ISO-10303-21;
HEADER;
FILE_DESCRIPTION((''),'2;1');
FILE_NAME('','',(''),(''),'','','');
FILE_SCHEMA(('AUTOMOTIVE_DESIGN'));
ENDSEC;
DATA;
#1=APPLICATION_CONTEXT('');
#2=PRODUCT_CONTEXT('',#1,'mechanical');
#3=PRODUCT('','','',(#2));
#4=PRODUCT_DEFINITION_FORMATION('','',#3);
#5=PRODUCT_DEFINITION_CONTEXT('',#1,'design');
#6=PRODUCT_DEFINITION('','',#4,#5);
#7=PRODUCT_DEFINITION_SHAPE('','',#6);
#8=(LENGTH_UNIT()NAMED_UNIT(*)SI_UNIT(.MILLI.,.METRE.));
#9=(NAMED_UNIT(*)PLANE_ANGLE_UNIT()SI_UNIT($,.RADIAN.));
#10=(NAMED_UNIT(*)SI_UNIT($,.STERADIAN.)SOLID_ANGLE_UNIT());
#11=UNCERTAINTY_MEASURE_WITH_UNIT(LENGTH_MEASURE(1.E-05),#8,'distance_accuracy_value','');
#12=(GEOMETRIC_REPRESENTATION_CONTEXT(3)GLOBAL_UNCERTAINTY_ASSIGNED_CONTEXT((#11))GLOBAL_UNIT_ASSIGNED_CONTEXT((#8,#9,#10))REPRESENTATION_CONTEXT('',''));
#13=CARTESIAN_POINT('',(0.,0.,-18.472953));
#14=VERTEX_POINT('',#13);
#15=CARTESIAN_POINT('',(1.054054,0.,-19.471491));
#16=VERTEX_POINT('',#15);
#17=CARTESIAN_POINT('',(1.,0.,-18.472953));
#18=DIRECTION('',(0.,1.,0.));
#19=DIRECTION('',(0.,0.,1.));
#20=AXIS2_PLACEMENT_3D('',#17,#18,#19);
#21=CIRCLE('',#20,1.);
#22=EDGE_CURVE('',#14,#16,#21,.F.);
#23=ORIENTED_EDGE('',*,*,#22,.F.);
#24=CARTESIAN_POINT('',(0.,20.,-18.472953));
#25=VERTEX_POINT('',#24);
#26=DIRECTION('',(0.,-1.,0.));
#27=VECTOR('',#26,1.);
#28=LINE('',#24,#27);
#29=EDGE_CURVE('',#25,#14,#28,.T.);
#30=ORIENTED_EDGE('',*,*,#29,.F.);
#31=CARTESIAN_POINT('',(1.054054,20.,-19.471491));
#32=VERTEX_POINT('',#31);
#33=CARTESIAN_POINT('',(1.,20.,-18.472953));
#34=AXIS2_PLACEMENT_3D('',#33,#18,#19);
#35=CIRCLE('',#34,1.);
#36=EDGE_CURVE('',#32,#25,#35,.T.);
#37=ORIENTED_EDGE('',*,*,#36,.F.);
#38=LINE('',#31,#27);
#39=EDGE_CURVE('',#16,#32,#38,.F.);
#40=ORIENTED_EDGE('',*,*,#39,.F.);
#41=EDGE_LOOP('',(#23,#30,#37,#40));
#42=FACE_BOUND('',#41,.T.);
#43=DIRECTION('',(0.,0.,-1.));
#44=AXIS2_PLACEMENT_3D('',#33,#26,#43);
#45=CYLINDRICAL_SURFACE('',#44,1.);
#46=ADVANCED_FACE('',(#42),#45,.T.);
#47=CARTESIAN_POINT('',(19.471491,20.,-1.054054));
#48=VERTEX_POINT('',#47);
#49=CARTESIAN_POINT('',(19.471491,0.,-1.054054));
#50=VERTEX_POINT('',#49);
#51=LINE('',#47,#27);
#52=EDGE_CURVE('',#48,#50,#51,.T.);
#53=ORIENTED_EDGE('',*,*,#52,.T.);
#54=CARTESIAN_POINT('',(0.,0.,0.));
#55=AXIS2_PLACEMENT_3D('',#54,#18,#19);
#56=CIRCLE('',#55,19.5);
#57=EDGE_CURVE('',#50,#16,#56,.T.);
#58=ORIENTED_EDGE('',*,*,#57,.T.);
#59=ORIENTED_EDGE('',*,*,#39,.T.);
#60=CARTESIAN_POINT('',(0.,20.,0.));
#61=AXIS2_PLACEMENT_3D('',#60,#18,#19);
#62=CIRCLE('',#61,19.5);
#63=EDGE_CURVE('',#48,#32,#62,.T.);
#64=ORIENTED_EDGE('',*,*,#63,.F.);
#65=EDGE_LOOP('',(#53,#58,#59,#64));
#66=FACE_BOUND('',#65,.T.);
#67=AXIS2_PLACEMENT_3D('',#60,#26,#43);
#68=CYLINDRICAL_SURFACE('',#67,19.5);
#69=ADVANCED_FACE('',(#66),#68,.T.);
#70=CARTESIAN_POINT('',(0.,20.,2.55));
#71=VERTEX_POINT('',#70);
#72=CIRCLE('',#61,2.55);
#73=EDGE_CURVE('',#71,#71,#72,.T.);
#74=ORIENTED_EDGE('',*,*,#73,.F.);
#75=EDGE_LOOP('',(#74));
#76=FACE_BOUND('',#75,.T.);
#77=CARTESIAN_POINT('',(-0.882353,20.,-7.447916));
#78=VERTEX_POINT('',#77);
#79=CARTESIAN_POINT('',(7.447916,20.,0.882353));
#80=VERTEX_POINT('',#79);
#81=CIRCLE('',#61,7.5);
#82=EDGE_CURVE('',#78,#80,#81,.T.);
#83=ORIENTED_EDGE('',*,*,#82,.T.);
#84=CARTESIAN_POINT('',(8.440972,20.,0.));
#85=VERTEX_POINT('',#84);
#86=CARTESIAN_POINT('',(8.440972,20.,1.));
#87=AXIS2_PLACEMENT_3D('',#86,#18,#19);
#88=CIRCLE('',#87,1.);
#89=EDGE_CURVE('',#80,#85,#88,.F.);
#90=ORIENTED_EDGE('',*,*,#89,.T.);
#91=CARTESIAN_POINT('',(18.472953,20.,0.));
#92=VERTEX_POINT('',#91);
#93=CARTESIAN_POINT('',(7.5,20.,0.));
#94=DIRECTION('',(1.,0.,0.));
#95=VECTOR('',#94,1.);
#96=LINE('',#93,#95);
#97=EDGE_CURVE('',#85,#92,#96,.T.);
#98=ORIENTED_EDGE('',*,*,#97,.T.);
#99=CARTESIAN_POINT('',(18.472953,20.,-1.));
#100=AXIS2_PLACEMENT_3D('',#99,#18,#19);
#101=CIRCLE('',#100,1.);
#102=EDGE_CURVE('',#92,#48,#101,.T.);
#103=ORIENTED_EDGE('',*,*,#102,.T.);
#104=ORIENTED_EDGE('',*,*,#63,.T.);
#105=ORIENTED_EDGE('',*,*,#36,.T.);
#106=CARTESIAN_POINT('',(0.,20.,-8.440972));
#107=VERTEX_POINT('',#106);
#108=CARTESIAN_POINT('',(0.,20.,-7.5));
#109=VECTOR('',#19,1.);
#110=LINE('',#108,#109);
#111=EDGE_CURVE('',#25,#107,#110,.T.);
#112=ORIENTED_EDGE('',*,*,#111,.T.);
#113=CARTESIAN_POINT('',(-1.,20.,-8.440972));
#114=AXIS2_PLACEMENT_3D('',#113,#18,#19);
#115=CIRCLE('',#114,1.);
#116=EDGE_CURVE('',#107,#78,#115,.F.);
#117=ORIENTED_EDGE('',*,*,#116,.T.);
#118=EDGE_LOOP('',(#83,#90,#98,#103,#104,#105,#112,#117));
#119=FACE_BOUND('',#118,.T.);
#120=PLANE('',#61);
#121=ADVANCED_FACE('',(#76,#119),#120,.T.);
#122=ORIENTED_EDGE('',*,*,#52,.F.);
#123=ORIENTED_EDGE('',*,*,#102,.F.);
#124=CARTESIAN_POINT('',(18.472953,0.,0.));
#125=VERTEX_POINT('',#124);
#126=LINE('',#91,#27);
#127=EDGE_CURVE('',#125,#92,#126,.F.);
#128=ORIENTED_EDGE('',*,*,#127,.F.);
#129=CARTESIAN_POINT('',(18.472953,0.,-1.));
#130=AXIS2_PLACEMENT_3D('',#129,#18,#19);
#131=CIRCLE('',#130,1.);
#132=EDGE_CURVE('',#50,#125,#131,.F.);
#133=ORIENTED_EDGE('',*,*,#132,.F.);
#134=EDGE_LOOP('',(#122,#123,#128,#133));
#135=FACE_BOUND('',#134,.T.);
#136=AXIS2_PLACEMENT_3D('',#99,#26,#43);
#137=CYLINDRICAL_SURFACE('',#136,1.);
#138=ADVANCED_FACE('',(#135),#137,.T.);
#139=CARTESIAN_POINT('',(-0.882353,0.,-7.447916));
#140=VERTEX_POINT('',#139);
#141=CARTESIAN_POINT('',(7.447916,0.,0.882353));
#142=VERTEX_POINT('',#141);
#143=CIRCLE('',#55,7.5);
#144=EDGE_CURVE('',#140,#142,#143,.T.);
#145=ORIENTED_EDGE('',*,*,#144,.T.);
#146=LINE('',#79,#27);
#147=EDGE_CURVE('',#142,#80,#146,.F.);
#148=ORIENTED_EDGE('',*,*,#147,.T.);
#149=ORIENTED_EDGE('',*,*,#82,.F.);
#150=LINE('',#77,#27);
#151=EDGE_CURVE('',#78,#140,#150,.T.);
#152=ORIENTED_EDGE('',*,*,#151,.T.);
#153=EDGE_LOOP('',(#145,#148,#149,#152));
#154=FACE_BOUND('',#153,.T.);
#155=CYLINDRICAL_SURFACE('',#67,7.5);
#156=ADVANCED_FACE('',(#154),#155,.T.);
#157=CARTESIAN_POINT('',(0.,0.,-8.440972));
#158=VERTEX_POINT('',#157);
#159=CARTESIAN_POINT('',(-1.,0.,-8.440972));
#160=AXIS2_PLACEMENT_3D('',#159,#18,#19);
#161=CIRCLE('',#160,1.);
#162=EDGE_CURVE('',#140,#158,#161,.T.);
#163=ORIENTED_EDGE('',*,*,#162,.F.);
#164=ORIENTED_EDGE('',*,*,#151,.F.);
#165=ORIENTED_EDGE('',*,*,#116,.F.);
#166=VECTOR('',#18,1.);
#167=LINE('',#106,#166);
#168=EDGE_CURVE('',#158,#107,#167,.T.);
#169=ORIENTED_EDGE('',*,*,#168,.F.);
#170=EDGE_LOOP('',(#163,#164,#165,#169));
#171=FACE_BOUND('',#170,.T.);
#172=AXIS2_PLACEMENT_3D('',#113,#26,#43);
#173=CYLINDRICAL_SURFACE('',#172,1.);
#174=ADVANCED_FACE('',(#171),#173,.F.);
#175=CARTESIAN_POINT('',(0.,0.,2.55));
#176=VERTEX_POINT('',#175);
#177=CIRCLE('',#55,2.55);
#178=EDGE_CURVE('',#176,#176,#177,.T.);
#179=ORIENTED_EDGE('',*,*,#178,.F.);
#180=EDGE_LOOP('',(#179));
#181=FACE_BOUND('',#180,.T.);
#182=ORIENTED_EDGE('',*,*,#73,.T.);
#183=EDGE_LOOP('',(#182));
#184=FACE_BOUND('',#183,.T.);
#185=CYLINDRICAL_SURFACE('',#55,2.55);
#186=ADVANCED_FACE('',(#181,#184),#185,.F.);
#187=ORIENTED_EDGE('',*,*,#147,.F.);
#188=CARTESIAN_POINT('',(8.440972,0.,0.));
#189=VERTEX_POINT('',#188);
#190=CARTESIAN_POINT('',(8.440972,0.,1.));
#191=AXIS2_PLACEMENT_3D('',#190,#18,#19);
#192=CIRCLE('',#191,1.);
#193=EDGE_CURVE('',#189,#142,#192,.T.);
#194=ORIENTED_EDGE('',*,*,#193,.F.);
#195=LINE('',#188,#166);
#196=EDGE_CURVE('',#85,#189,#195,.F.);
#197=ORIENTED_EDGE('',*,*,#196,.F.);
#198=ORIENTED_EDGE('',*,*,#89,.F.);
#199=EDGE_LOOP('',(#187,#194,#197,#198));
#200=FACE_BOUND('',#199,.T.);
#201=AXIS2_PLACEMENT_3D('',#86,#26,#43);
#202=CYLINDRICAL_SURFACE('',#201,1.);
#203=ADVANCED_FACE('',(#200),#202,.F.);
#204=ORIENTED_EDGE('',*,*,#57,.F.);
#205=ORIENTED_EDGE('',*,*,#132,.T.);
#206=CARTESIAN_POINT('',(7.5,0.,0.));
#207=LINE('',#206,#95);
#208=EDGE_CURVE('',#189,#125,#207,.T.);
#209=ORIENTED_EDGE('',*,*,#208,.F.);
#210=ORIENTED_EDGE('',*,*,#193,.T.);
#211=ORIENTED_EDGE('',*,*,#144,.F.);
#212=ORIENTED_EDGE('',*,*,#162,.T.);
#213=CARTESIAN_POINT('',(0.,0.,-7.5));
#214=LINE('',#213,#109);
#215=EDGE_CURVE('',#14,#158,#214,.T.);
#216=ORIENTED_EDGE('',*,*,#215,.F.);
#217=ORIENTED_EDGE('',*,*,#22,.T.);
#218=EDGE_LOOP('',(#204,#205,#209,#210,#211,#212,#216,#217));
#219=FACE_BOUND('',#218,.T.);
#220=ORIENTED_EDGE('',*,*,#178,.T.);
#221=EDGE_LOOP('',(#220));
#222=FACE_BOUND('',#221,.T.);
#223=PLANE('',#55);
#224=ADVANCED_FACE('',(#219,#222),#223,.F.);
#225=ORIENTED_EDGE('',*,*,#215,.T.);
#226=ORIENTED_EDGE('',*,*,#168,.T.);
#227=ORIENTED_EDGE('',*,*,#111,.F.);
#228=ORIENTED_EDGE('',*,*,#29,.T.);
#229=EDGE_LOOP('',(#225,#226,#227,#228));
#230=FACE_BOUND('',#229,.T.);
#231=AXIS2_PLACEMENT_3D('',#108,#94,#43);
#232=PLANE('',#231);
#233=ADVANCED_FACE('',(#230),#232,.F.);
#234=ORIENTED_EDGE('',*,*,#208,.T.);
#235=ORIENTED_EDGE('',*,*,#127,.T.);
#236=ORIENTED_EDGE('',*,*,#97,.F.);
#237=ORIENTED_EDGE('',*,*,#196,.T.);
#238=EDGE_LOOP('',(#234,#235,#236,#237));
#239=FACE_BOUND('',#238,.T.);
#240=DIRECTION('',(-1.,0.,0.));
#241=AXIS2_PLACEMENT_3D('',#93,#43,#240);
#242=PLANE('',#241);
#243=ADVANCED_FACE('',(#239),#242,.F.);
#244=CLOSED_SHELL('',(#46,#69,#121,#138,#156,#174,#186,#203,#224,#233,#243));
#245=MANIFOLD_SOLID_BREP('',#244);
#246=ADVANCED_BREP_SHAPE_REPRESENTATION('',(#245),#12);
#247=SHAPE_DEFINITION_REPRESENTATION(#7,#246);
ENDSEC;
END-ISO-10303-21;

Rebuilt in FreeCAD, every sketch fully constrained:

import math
import FreeCAD as App
import Part
import Sketcher
Q = App.Units.Quantity


def edges_at(feature, points):
    """Names of the edges that pass closest to the given points."""
    edges = feature.Shape.Edges
    near = lambda p: min(range(len(edges)), key=lambda i: edges[i].distToShape(Part.Vertex(*p))[0])
    return sorted({f"Edge{near(p) + 1}" for p in points})

doc = App.newDocument("Part")
params = doc.addObject("Spreadsheet::Sheet", "Params")
for row, (alias, value) in enumerate([
    ("sketch1_radius", "19.5 mm"),
    ("sketch1_radius2", "7.5 mm"),
    ("pad1_length", "20 mm"),
    ("sketch2_diameter", "5.1 mm"),
    ("pocket1_length", "20 mm"),
    ("fillet_radius", "1 mm"),
], start=1):
    params.set(f"A{row}", alias)
    params.set(f"B{row}", "=" + value)
    params.setAlias(f"B{row}", alias)

body = doc.addObject("PartDesign::Body", "Body")

# Sketch on XZ plane
sketch1 = body.newObject("Sketcher::SketchObject", "Sketch")
sketch1.AttachmentSupport = (doc.getObject("XZ_Plane"), [""])
sketch1.MapMode = "FlatFace"
sketch1.addGeometry([
    Part.LineSegment(App.Vector(8, 0, 0), App.Vector(20, 0, 0)),
    Part.ArcOfCircle(Part.Circle(App.Vector(0, 0, 0), App.Vector(0, 0, 1), 20), math.radians(-90), math.radians(0)),
    Part.LineSegment(App.Vector(0, -20, 0), App.Vector(0, -8, 0)),
    Part.ArcOfCircle(Part.Circle(App.Vector(0, 0, 0), App.Vector(0, 0, 1), 8), math.radians(0), math.radians(270)),
], False)
sketch1.addConstraint([
    Sketcher.Constraint("Coincident", 0, 2, 1, 2),
    Sketcher.Constraint("Coincident", 1, 1, 2, 1),
    Sketcher.Constraint("Coincident", 2, 2, 3, 2),
    Sketcher.Constraint("Coincident", 3, 1, 0, 1),
    Sketcher.Constraint("Horizontal", 0),
    Sketcher.Constraint("Vertical", 2),
    Sketcher.Constraint("Coincident", 1, 3, -1, 1),
    Sketcher.Constraint("Coincident", 3, 3, -1, 1),
    Sketcher.Constraint("PointOnObject", 0, 2, -1),
    Sketcher.Constraint("PointOnObject", 1, 1, -2),
    Sketcher.Constraint("Radius", 1, Q("19.5 mm")),
    Sketcher.Constraint("Radius", 3, Q("7.5 mm")),
])
sketch1.setExpression("Constraints[10]", "Params.sketch1_radius")
sketch1.setExpression("Constraints[11]", "Params.sketch1_radius2")
pad1 = body.newObject("PartDesign::Pad", "Pad")
pad1.Profile = sketch1
pad1.setExpression("Length", "Params.pad1_length")
pad1.Reversed = True

# Sketch on XZ plane
sketch2 = body.newObject("Sketcher::SketchObject", "Sketch001")
sketch2.AttachmentSupport = (doc.getObject("XZ_Plane"), [""])
sketch2.MapMode = "FlatFace"
sketch2.AttachmentOffset = App.Placement(App.Vector(0, 0, -20), App.Rotation())
sketch2.addGeometry(Part.Circle(App.Vector(0, 0, 0), App.Vector(0, 0, 1), 2.5), False)
sketch2.addConstraint([
    Sketcher.Constraint("Coincident", 0, 3, -1, 1),
    Sketcher.Constraint("Diameter", 0, Q("5.1 mm")),
])
sketch2.setExpression("Constraints[1]", "Params.sketch2_diameter")
pocket1 = body.newObject("PartDesign::Pocket", "Pocket")
pocket1.Profile = sketch2
pocket1.setExpression("Length", "Params.pocket1_length")
pocket1.Reversed = True
doc.recompute()

fillet = body.newObject("PartDesign::Fillet", "Fillet")
fillet.Base = (pocket1, edges_at(pocket1, [
    (0, 10, -7.5),
    (0, 10, -19.5),
    (19.5, 10, 0),
    (7.5, 10, 0),
]))
fillet.setExpression("Radius", "Params.fillet_radius")

doc.recompute()
